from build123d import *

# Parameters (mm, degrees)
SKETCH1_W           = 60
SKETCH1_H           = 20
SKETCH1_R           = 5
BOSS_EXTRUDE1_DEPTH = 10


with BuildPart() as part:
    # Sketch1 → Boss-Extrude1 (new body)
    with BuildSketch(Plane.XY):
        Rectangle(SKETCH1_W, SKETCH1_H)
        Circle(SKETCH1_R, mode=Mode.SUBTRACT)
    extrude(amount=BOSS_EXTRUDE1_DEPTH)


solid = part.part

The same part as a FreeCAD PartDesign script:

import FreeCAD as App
import Part
import Sketcher
from FreeCAD import Vector


def add_polygon(sketch, points):
    """Adds a closed chain of lines whose ends are joined by coincident constraints."""
    first, n = sketch.GeometryCount, len(points)
    for a, b in zip(points, points[1:] + points[:1]):
        sketch.addGeometry(Part.LineSegment(App.Vector(*a, 0), App.Vector(*b, 0)), False)
    for i in range(n):
        sketch.addConstraint(Sketcher.Constraint("Coincident", first + i, 2, first + (i + 1) % n, 1))

doc = App.newDocument("Part")
params = doc.addObject("Spreadsheet::Sheet", "Params")
for row, (alias, value) in enumerate([
    ("sketch1_diameter", "10 mm"),
    ("sketch1_width", "60 mm"),
    ("sketch1_height", "20 mm"),
    ("pad1_length", "10 mm"),
], start=1):
    params.set(f"A{row}", alias)
    params.set(f"B{row}", "=" + value)
    params.setAlias(f"B{row}", alias)

body = doc.addObject("PartDesign::Body", "Body")

sketch1 = body.newObject("Sketcher::SketchObject", "Sketch")
sketch1.AttachmentSupport = (doc.getObject("XY_Plane"), [""])
sketch1.MapMode = "FlatFace"
add_polygon(sketch1, [(-30, 10), (-30, -10), (30, -10), (30, 10)])
sketch1.addGeometry(Part.Circle(Vector(0, 0, 0), Vector(0, 0, 1), 5), False)
sketch1.addConstraint([
    Sketcher.Constraint("Vertical", 0),
    Sketcher.Constraint("Horizontal", 1),
    Sketcher.Constraint("Vertical", 2),
    Sketcher.Constraint("Horizontal", 3),
    Sketcher.Constraint("Coincident", 4, 3, -1, 1),
    Sketcher.Constraint("Symmetric", 0, 2, 2, 2, -1, 1),
    Sketcher.Constraint("Diameter", 4, 10.0),
    Sketcher.Constraint("DistanceX", 1, 1, 1, 2, 60.0),
    Sketcher.Constraint("DistanceY", 0, 2, 0, 1, 20.0),
])
sketch1.setExpression("Constraints[10]", "Params.sketch1_diameter")
sketch1.setExpression("Constraints[11]", "Params.sketch1_width")
sketch1.setExpression("Constraints[12]", "Params.sketch1_height")
pad1 = body.newObject("PartDesign::Pad", "Pad")
pad1.Profile = sketch1
pad1.setExpression("Length", "Params.pad1_length")

doc.recompute()
